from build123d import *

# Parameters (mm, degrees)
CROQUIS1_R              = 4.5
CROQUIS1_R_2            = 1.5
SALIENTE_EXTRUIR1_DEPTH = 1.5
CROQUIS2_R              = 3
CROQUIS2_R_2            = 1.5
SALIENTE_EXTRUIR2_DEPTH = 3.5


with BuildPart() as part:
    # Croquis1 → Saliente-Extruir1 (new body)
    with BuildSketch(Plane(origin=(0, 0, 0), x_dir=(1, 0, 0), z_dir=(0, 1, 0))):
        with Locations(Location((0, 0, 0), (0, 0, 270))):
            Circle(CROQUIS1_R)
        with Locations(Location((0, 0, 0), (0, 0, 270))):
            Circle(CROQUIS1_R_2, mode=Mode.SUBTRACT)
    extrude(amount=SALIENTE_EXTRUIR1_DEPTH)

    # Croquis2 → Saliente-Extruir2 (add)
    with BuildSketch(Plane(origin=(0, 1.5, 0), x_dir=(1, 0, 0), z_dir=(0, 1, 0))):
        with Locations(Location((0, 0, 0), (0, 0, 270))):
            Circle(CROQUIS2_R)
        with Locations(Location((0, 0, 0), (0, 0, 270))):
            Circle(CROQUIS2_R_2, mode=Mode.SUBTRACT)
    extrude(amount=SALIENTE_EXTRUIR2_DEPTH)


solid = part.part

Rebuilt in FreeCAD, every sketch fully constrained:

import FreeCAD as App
import Part
import Sketcher

doc = App.newDocument("Part")
body = doc.addObject("PartDesign::Body", "Body")

# Sketch on XZ plane
sketch1 = body.newObject("Sketcher::SketchObject", "Sketch")
sketch1.AttachmentSupport = (doc.getObject("XZ_Plane"), [""])
sketch1.MapMode = "FlatFace"
sketch1.addGeometry([
    Part.Circle(App.Vector(0, 0, 0), App.Vector(0, 0, 1), 4.5),
    Part.Circle(App.Vector(0, 0, 0), App.Vector(0, 0, 1), 1.5),
], False)
sketch1.addConstraint([
    Sketcher.Constraint("Coincident", 0, 3, -1, 1),
    Sketcher.Constraint("Coincident", 1, 3, -1, 1),
    Sketcher.Constraint("Diameter", 0, 9.0),
    Sketcher.Constraint("Diameter", 1, 3.0),
])
pad1 = body.newObject("PartDesign::Pad", "Pad")
pad1.Profile = sketch1
pad1.Length = 1.5
pad1.Reversed = True

# Sketch on XZ plane
sketch2 = body.newObject("Sketcher::SketchObject", "Sketch001")
sketch2.AttachmentSupport = (doc.getObject("XZ_Plane"), [""])
sketch2.MapMode = "FlatFace"
sketch2.AttachmentOffset = App.Placement(App.Vector(0, 0, -1.5), App.Rotation())
sketch2.addGeometry([
    Part.Circle(App.Vector(0, 0, 0), App.Vector(0, 0, 1), 3),
    Part.Circle(App.Vector(0, 0, 0), App.Vector(0, 0, 1), 1.5),
], False)
sketch2.addConstraint([
    Sketcher.Constraint("Coincident", 0, 3, -1, 1),
    Sketcher.Constraint("Coincident", 1, 3, -1, 1),
    Sketcher.Constraint("Diameter", 0, 6.0),
    Sketcher.Constraint("Diameter", 1, 3.0),
])
pad2 = body.newObject("PartDesign::Pad", "Pad001")
pad2.Profile = sketch2
pad2.Length = 3.5
pad2.Reversed = True

doc.recompute()
